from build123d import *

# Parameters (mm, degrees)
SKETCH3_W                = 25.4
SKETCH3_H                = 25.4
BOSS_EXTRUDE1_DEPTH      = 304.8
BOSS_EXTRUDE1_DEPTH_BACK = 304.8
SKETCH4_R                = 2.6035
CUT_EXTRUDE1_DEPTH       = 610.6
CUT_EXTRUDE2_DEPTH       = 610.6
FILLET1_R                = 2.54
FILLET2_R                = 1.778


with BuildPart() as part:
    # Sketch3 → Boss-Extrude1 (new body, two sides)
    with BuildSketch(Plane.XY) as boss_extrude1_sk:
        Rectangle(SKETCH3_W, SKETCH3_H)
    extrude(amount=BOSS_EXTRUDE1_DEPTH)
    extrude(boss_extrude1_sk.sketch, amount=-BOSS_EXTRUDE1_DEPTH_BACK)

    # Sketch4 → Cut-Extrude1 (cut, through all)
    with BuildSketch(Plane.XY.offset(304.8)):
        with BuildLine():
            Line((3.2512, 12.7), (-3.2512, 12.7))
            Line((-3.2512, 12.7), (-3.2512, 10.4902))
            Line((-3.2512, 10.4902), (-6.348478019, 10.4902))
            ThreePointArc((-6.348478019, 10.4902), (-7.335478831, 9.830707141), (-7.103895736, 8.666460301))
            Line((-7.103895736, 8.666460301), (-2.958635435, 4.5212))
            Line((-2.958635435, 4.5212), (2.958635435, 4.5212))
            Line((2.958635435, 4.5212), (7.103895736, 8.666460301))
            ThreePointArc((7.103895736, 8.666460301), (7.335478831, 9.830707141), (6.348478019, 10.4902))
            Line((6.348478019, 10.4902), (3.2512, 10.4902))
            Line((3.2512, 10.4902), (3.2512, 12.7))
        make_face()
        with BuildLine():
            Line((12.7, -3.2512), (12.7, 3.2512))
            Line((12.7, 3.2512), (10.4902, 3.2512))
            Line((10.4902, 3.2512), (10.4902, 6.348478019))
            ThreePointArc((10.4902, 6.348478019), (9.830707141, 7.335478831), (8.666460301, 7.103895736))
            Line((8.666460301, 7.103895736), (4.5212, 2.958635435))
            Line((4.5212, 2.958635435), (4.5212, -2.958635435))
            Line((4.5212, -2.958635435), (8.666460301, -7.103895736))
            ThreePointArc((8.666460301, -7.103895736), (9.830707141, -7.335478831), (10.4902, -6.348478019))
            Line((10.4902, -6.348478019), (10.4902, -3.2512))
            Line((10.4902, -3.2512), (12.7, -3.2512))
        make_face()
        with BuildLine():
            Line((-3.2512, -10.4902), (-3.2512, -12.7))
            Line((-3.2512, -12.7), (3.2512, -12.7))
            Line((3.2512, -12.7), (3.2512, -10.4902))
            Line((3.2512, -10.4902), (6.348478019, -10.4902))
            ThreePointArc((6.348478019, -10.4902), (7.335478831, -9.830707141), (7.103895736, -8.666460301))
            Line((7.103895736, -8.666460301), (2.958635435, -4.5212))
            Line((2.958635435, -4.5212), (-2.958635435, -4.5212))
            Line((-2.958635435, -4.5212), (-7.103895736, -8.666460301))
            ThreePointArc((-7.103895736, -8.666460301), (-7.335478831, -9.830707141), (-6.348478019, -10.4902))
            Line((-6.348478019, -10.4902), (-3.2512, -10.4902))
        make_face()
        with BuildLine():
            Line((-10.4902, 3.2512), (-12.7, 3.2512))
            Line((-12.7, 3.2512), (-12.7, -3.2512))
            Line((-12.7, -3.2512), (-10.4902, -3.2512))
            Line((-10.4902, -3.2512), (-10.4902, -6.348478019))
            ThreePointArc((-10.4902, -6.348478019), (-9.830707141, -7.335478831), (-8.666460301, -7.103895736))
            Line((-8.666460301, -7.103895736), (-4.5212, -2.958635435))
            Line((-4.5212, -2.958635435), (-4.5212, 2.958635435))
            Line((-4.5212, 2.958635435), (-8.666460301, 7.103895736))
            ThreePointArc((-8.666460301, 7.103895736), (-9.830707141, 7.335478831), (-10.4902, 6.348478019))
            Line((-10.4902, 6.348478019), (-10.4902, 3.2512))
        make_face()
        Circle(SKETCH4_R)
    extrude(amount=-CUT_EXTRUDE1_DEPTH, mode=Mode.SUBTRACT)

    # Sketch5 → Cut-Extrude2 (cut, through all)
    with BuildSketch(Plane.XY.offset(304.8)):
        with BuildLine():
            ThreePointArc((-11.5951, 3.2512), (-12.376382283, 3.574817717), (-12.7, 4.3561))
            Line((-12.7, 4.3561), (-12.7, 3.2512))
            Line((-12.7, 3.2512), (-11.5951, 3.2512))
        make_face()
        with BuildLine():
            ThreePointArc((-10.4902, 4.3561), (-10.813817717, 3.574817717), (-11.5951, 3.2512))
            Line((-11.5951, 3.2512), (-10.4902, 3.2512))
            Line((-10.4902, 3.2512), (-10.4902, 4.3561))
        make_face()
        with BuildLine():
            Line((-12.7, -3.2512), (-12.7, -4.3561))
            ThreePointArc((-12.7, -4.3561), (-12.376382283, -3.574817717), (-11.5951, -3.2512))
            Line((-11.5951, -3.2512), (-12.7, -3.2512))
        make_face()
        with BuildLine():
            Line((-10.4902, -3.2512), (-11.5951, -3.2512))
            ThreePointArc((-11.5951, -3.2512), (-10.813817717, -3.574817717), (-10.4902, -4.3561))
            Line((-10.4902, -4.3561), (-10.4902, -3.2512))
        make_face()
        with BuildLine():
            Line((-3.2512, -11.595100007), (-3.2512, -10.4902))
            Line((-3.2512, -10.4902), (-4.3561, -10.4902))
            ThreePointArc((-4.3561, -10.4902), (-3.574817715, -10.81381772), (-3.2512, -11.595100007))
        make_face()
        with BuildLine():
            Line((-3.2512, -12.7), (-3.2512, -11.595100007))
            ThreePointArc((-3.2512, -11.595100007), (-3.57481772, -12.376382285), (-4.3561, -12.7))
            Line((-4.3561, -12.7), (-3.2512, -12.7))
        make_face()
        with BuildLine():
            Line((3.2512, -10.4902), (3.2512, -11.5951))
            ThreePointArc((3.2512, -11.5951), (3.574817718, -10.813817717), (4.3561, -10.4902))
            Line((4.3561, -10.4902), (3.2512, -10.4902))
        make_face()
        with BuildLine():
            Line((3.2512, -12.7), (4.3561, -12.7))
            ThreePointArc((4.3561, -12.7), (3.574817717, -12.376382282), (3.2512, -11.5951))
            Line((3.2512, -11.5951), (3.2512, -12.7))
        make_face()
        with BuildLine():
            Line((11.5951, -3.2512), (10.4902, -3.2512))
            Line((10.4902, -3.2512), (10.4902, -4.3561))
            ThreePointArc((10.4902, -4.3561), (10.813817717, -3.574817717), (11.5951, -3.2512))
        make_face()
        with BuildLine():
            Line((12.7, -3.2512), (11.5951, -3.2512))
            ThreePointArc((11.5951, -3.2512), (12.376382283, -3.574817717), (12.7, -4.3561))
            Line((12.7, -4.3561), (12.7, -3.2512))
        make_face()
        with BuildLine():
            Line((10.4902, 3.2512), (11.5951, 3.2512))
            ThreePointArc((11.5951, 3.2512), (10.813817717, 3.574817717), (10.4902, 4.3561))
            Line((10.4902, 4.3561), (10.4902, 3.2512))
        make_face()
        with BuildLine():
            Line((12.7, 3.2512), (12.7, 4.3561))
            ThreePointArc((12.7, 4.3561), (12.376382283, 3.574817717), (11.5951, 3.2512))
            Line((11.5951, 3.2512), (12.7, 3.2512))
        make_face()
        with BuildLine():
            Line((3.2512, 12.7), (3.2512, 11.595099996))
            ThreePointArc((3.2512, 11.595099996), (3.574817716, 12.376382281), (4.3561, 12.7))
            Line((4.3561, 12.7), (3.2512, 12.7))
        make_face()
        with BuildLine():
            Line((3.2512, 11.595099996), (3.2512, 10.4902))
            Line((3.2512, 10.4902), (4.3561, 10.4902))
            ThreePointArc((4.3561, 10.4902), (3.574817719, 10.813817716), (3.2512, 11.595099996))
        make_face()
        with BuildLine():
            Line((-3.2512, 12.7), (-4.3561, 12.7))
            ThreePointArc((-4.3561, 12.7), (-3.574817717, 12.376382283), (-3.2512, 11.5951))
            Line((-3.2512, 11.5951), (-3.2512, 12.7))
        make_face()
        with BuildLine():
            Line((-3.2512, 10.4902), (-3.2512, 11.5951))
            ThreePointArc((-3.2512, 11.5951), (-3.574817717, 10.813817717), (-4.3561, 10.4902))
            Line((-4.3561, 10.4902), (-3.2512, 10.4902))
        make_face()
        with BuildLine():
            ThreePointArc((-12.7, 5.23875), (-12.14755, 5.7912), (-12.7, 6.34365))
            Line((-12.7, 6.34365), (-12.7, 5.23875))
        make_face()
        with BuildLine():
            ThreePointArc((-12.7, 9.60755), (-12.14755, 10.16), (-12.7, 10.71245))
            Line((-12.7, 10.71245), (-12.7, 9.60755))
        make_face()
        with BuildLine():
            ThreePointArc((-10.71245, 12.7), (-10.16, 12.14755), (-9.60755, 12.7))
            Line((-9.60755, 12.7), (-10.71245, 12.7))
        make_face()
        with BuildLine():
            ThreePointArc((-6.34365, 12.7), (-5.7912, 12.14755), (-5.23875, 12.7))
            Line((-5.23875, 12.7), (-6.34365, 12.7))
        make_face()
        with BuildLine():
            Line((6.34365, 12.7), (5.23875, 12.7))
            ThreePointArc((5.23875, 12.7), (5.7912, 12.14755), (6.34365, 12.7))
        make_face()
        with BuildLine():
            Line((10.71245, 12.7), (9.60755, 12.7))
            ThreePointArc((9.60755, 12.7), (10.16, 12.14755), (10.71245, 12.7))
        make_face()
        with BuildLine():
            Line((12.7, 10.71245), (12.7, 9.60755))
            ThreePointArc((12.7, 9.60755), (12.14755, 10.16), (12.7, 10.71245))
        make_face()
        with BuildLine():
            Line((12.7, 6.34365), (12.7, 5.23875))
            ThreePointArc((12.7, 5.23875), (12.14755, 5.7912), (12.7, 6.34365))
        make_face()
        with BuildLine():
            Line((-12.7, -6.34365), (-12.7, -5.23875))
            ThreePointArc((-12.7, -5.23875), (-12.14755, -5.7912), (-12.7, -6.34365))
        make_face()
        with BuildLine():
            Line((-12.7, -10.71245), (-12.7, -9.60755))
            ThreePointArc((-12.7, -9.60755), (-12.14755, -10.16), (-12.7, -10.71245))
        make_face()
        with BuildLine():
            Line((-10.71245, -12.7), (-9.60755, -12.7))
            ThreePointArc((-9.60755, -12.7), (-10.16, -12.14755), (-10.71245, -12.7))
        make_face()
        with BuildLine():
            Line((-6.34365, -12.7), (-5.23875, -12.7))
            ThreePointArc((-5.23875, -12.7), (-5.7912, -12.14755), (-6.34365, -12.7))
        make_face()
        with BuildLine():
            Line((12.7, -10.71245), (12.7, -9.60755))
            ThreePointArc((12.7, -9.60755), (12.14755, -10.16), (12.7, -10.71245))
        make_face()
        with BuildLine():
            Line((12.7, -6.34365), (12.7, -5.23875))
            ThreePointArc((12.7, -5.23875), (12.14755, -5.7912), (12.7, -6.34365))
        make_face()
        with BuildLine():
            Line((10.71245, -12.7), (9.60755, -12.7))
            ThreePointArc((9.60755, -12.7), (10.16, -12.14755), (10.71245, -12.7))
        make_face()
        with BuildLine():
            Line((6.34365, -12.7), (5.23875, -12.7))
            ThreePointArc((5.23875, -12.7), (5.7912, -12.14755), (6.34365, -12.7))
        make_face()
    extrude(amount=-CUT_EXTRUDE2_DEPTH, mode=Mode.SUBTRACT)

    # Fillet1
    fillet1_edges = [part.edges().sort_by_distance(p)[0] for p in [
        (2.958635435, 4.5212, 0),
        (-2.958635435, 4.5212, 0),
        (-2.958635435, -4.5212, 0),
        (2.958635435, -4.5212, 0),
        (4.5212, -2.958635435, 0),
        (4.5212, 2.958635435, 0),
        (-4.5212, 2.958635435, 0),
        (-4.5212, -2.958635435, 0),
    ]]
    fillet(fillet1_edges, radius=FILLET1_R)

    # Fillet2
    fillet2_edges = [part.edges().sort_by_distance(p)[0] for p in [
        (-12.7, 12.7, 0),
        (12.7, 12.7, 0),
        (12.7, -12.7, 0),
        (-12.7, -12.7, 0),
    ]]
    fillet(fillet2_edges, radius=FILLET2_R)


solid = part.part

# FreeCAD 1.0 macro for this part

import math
import FreeCAD as App
import Part
import Sketcher

V = App.Vector
Q = App.Units.Quantity


def edges_at(feature, points):
    """Names of the edges that pass closest to the given points."""
    edges = feature.Shape.Edges
    near = lambda p: min(range(len(edges)), key=lambda i: edges[i].distToShape(Part.Vertex(*p))[0])
    return sorted({f"Edge{near(p) + 1}" for p in points})


def add_polygon(sketch, points):
    """Adds a closed chain of lines whose ends are joined by coincident constraints."""
    first, n = sketch.GeometryCount, len(points)
    for a, b in zip(points, points[1:] + points[:1]):
        sketch.addGeometry(Part.LineSegment(App.Vector(*a, 0), App.Vector(*b, 0)), False)
    for i in range(n):
        sketch.addConstraint(Sketcher.Constraint("Coincident", first + i, 2, first + (i + 1) % n, 1))

doc = App.newDocument("Part")
body = doc.addObject("PartDesign::Body", "Body")

# Sketch on XY plane
sketch1 = body.newObject("Sketcher::SketchObject", "Sketch")
sketch1.AttachmentSupport = (doc.getObject("XY_Plane"), [""])
sketch1.MapMode = "FlatFace"
add_polygon(sketch1, [(-12.7, 12.7), (-12.7, -12.7), (12.7, -12.7), (12.7, 12.7)])  # lines 0-3
sketch1.addConstraint([
    Sketcher.Constraint("Vertical", 0),
    Sketcher.Constraint("Horizontal", 1),
    Sketcher.Constraint("Vertical", 2),
    Sketcher.Constraint("Horizontal", 3),
    Sketcher.Constraint("Symmetric", 0, 2, 2, 2, -1, 1),
    Sketcher.Constraint("Equal", 3, 0),
    Sketcher.Constraint("DistanceX", 1, 1, 1, 2, Q("1 in")),
])
pad1 = body.newObject("PartDesign::Pad", "Pad")
pad1.Profile = sketch1
pad1.Type = "TwoLengths"
pad1.Length = Q("12 in")
pad1.Length2 = Q("12 in")

# Sketch on XY plane
sketch2 = body.newObject("Sketcher::SketchObject", "Sketch001")
sketch2.AttachmentSupport = (doc.getObject("XY_Plane"), [""])
sketch2.MapMode = "FlatFace"
sketch2.AttachmentOffset = App.Placement(V(0, 0, 12 * 25.4), App.Rotation())
sketch2.addGeometry([
    Part.LineSegment(V(3.2512, 12.7, 0), V(-3.2512, 12.7, 0)),  # 0
    Part.LineSegment(V(-3.2512, 12.7, 0), V(-3.2512, 10.4902, 0)),  # 1
    Part.LineSegment(V(-3.2512, 10.4902, 0), V(-6.348478, 10.4902, 0)),  # 2
    Part.ArcOfCircle(Part.Circle(V(-6.348478, 9.421878, 0), V(0, 0, 1), 1.068322), math.radians(90), math.radians(225)),  # 3
    Part.LineSegment(V(-7.103896, 8.66646, 0), V(-2.958635, 4.5212, 0)),  # 4
    Part.LineSegment(V(-2.958635, 4.5212, 0), V(2.958635, 4.5212, 0)),  # 5
    Part.LineSegment(V(2.958635, 4.5212, 0), V(7.103896, 8.66646, 0)),  # 6
    Part.ArcOfCircle(Part.Circle(V(6.348478, 9.421878, 0), V(0, 0, 1), 1.068322), math.radians(-45), math.radians(90)),  # 7
    Part.LineSegment(V(6.348478, 10.4902, 0), V(3.2512, 10.4902, 0)),  # 8
    Part.LineSegment(V(3.2512, 10.4902, 0), V(3.2512, 12.7, 0)),  # 9
    Part.LineSegment(V(12.7, -3.2512, 0), V(12.7, 3.2512, 0)),  # 10
    Part.LineSegment(V(12.7, 3.2512, 0), V(10.4902, 3.2512, 0)),  # 11
    Part.LineSegment(V(10.4902, 3.2512, 0), V(10.4902, 6.348478, 0)),  # 12
    Part.ArcOfCircle(Part.Circle(V(9.421878, 6.348478, 0), V(0, 0, 1), 1.068322), math.radians(0), math.radians(135)),  # 13
    Part.LineSegment(V(8.66646, 7.103896, 0), V(4.5212, 2.958635, 0)),  # 14
    Part.LineSegment(V(4.5212, 2.958635, 0), V(4.5212, -2.958635, 0)),  # 15
    Part.LineSegment(V(4.5212, -2.958635, 0), V(8.66646, -7.103896, 0)),  # 16
    Part.ArcOfCircle(Part.Circle(V(9.421878, -6.348478, 0), V(0, 0, 1), 1.068322), math.radians(-135), math.radians(0)),  # 17
    Part.LineSegment(V(10.4902, -6.348478, 0), V(10.4902, -3.2512, 0)),  # 18
    Part.LineSegment(V(10.4902, -3.2512, 0), V(12.7, -3.2512, 0)),  # 19
    Part.LineSegment(V(-3.2512, -10.4902, 0), V(-3.2512, -12.7, 0)),  # 20
    Part.LineSegment(V(-3.2512, -12.7, 0), V(3.2512, -12.7, 0)),  # 21
    Part.LineSegment(V(3.2512, -12.7, 0), V(3.2512, -10.4902, 0)),  # 22
    Part.LineSegment(V(3.2512, -10.4902, 0), V(6.348478, -10.4902, 0)),  # 23
    Part.ArcOfCircle(Part.Circle(V(6.348478, -9.421878, 0), V(0, 0, 1), 1.068322), math.radians(-90), math.radians(45)),  # 24
    Part.LineSegment(V(7.103896, -8.66646, 0), V(2.958635, -4.5212, 0)),  # 25
    Part.LineSegment(V(2.958635, -4.5212, 0), V(-2.958635, -4.5212, 0)),  # 26
    Part.LineSegment(V(-2.958635, -4.5212, 0), V(-7.103896, -8.66646, 0)),  # 27
    Part.ArcOfCircle(Part.Circle(V(-6.348478, -9.421878, 0), V(0, 0, 1), 1.068322), math.radians(135), math.radians(270)),  # 28
    Part.LineSegment(V(-6.348478, -10.4902, 0), V(-3.2512, -10.4902, 0)),  # 29
    Part.LineSegment(V(-10.4902, 3.2512, 0), V(-12.7, 3.2512, 0)),  # 30
    Part.LineSegment(V(-12.7, 3.2512, 0), V(-12.7, -3.2512, 0)),  # 31
    Part.LineSegment(V(-12.7, -3.2512, 0), V(-10.4902, -3.2512, 0)),  # 32
    Part.LineSegment(V(-10.4902, -3.2512, 0), V(-10.4902, -6.348478, 0)),  # 33
    Part.ArcOfCircle(Part.Circle(V(-9.421878, -6.348478, 0), V(0, 0, 1), 1.068322), math.radians(-180), math.radians(-45)),  # 34
    Part.LineSegment(V(-8.66646, -7.103896, 0), V(-4.5212, -2.958635, 0)),  # 35
    Part.LineSegment(V(-4.5212, -2.958635, 0), V(-4.5212, 2.958635, 0)),  # 36
    Part.LineSegment(V(-4.5212, 2.958635, 0), V(-8.66646, 7.103896, 0)),  # 37
    Part.ArcOfCircle(Part.Circle(V(-9.421878, 6.348478, 0), V(0, 0, 1), 1.068322), math.radians(45), math.radians(180)),  # 38
    Part.LineSegment(V(-10.4902, 6.348478, 0), V(-10.4902, 3.2512, 0)),  # 39
    Part.Circle(V(0, 0, 0), V(0, 0, 1), 2.6035),  # 40
], False)
sketch2.addConstraint([
    Sketcher.Constraint("Coincident", 0, 2, 1, 1),
    Sketcher.Constraint("Coincident", 1, 2, 2, 1),
    Sketcher.Constraint("Tangent", 2, 2, 3, 1),
    Sketcher.Constraint("Tangent", 3, 2, 4, 1),
    Sketcher.Constraint("Coincident", 4, 2, 5, 1),
    Sketcher.Constraint("Coincident", 5, 2, 6, 1),
    Sketcher.Constraint("Tangent", 6, 2, 7, 1),
    Sketcher.Constraint("Tangent", 7, 2, 8, 1),
    Sketcher.Constraint("Coincident", 8, 2, 9, 1),
    Sketcher.Constraint("Coincident", 9, 2, 0, 1),
    Sketcher.Constraint("Coincident", 10, 2, 11, 1),
    Sketcher.Constraint("Coincident", 11, 2, 12, 1),
    Sketcher.Constraint("Tangent", 12, 2, 13, 1),
    Sketcher.Constraint("Tangent", 13, 2, 14, 1),
    Sketcher.Constraint("Coincident", 14, 2, 15, 1),
    Sketcher.Constraint("Coincident", 15, 2, 16, 1),
    Sketcher.Constraint("Tangent", 16, 2, 17, 1),
    Sketcher.Constraint("Tangent", 17, 2, 18, 1),
    Sketcher.Constraint("Coincident", 18, 2, 19, 1),
    Sketcher.Constraint("Coincident", 19, 2, 10, 1),
    Sketcher.Constraint("Coincident", 20, 2, 21, 1),
    Sketcher.Constraint("Coincident", 21, 2, 22, 1),
    Sketcher.Constraint("Coincident", 22, 2, 23, 1),
    Sketcher.Constraint("Tangent", 23, 2, 24, 1),
    Sketcher.Constraint("Tangent", 24, 2, 25, 1),
    Sketcher.Constraint("Coincident", 25, 2, 26, 1),
    Sketcher.Constraint("Coincident", 26, 2, 27, 1),
    Sketcher.Constraint("Tangent", 27, 2, 28, 1),
    Sketcher.Constraint("Tangent", 28, 2, 29, 1),
    Sketcher.Constraint("Coincident", 29, 2, 20, 1),
    Sketcher.Constraint("Coincident", 30, 2, 31, 1),
    Sketcher.Constraint("Coincident", 31, 2, 32, 1),
    Sketcher.Constraint("Coincident", 32, 2, 33, 1),
    Sketcher.Constraint("Tangent", 33, 2, 34, 1),
    Sketcher.Constraint("Tangent", 34, 2, 35, 1),
    Sketcher.Constraint("Coincident", 35, 2, 36, 1),
    Sketcher.Constraint("Coincident", 36, 2, 37, 1),
    Sketcher.Constraint("Tangent", 37, 2, 38, 1),
    Sketcher.Constraint("Tangent", 38, 2, 39, 1),
    Sketcher.Constraint("Coincident", 39, 2, 30, 1),
    Sketcher.Constraint("Horizontal", 0),
    Sketcher.Constraint("Vertical", 1),
    Sketcher.Constraint("Horizontal", 2),
    Sketcher.Constraint("Horizontal", 5),
    Sketcher.Constraint("Horizontal", 8),
    Sketcher.Constraint("Vertical", 9),
    Sketcher.Constraint("Vertical", 10),
    Sketcher.Constraint("Horizontal", 11),
    Sketcher.Constraint("Vertical", 12),
    Sketcher.Constraint("Vertical", 15),
    Sketcher.Constraint("Vertical", 18),
    Sketcher.Constraint("Horizontal", 19),
    Sketcher.Constraint("Vertical", 20),
    Sketcher.Constraint("Horizontal", 21),
    Sketcher.Constraint("Vertical", 22),
    Sketcher.Constraint("Horizontal", 23),
    Sketcher.Constraint("Horizontal", 26),
    Sketcher.Constraint("Horizontal", 29),
    Sketcher.Constraint("Horizontal", 30),
    Sketcher.Constraint("Vertical", 31),
    Sketcher.Constraint("Horizontal", 32),
    Sketcher.Constraint("Vertical", 33),
    Sketcher.Constraint("Vertical", 36),
    Sketcher.Constraint("Vertical", 39),
    Sketcher.Constraint("Coincident", 40, 3, -1, 1),
    Sketcher.Constraint("Equal", 3, 7),
    Sketcher.Constraint("Equal", 7, 13),
    Sketcher.Constraint("Equal", 13, 17),
    Sketcher.Constraint("Equal", 17, 24),
    Sketcher.Constraint("Equal", 24, 28),
    Sketcher.Constraint("Equal", 28, 34),
    Sketcher.Constraint("Equal", 34, 38),
    Sketcher.Constraint("Symmetric", 3, 3, 24, 3, -1, 1),
    Sketcher.Constraint("Symmetric", 7, 3, 28, 3, -1, 1),
    Sketcher.Constraint("Symmetric", 13, 3, 34, 3, -1, 1),
    Sketcher.Constraint("Symmetric", 17, 3, 38, 3, -1, 1),
    Sketcher.Constraint("Symmetric", 9, 2, 20, 2, -1, 1),
    Sketcher.Constraint("Symmetric", 4, 2, 25, 2, -1, 1),
    Sketcher.Constraint("Symmetric", 19, 2, 30, 2, -1, 1),
    Sketcher.Constraint("Symmetric", 14, 2, 35, 2, -1, 1),
    Sketcher.Constraint("Symmetric", 3, 3, 7, 3, -2),
    Sketcher.Constraint("Symmetric", 17, 3, 34, 3, -2),
    Sketcher.Constraint("Perpendicular", 4, 6),
    Sketcher.Constraint("Parallel", 6, 14),
    Sketcher.Constraint("Perpendicular", 14, 16),
    Sketcher.Constraint("Perpendicular", 25, 27),
    Sketcher.Constraint("Perpendicular", 35, 37),
    Sketcher.Constraint("Horizontal", 3, 2, 6, 2),
    Sketcher.Constraint("Horizontal", 11, 2, 30, 2),
    Sketcher.Constraint("Horizontal", 19, 2, 31, 2),
    Sketcher.Constraint("Vertical", 1, 2, 20, 2),
    Sketcher.Constraint("Vertical", 9, 2, 21, 2),
    Sketcher.Constraint("Equal", 32, 1),
    Sketcher.Constraint("Equal", 21, 10),
    Sketcher.Constraint("Equal", 29, 12),
    Sketcher.Constraint("Equal", 26, 15),
    Sketcher.Constraint("Diameter", 40, Q("0.205 in")),
    Sketcher.Constraint("DistanceY", -1, 1, 0, 2, Q("0.5 in")),
    Sketcher.Constraint("DistanceX", -1, 1, 10, 2, Q("0.5 in")),
    Sketcher.Constraint("DistanceX", 0, 2, 0, 1, Q("0.256 in")),
    Sketcher.Constraint("DistanceX", 11, 2, 11, 1, Q("0.087 in")),
    Sketcher.Constraint("DistanceY", 10, 2, 5, 2, Q("0.05 in")),
    Sketcher.Constraint("Radius", 3, Q("1.068322 mm")),
    Sketcher.Constraint("DistanceX", 7, 3, 13, 3, Q("0.121 in")),
])
pocket1 = body.newObject("PartDesign::Pocket", "Pocket")
pocket1.Profile = sketch2
pocket1.Type = "ThroughAll"

# Sketch on XY plane
sketch3 = body.newObject("Sketcher::SketchObject", "Sketch002")
sketch3.AttachmentSupport = (doc.getObject("XY_Plane"), [""])
sketch3.MapMode = "FlatFace"
sketch3.AttachmentOffset = App.Placement(V(0, 0, 12 * 25.4), App.Rotation())
sketch3.addGeometry([
    Part.ArcOfCircle(Part.Circle(V(-11.5951, 4.3561, 0), V(0, 0, 1), 1.1049), math.radians(180), math.radians(270)),  # 0
    Part.LineSegment(V(-12.7, 4.3561, 0), V(-12.7, 3.2512, 0)),  # 1
    Part.LineSegment(V(-12.7, 3.2512, 0), V(-11.5951, 3.2512, 0)),  # 2
    Part.ArcOfCircle(Part.Circle(V(-11.5951, 4.3561, 0), V(0, 0, 1), 1.1049), math.radians(-90), math.radians(0)),  # 3
    Part.LineSegment(V(-11.5951, 3.2512, 0), V(-10.4902, 3.2512, 0)),  # 4
    Part.LineSegment(V(-10.4902, 3.2512, 0), V(-10.4902, 4.3561, 0)),  # 5
    Part.LineSegment(V(-12.7, -3.2512, 0), V(-12.7, -4.3561, 0)),  # 6
    Part.ArcOfCircle(Part.Circle(V(-11.5951, -4.3561, 0), V(0, 0, 1), 1.1049), math.radians(90), math.radians(180)),  # 7
    Part.LineSegment(V(-11.5951, -3.2512, 0), V(-12.7, -3.2512, 0)),  # 8
    Part.LineSegment(V(-10.4902, -3.2512, 0), V(-11.5951, -3.2512, 0)),  # 9
    Part.ArcOfCircle(Part.Circle(V(-11.5951, -4.3561, 0), V(0, 0, 1), 1.1049), math.radians(0), math.radians(90)),  # 10
    Part.LineSegment(V(-10.4902, -4.3561, 0), V(-10.4902, -3.2512, 0)),  # 11
    Part.LineSegment(V(-3.2512, -11.5951, 0), V(-3.2512, -10.4902, 0)),  # 12
    Part.LineSegment(V(-3.2512, -10.4902, 0), V(-4.3561, -10.4902, 0)),  # 13
    Part.ArcOfCircle(Part.Circle(V(-4.3561, -11.5951, 0), V(0, 0, 1), 1.1049), math.radians(0), math.radians(90)),  # 14
    Part.LineSegment(V(-3.2512, -12.7, 0), V(-3.2512, -11.5951, 0)),  # 15
    Part.ArcOfCircle(Part.Circle(V(-4.3561, -11.5951, 0), V(0, 0, 1), 1.1049), math.radians(-90), math.radians(0)),  # 16
    Part.LineSegment(V(-4.3561, -12.7, 0), V(-3.2512, -12.7, 0)),  # 17
    Part.LineSegment(V(3.2512, -10.4902, 0), V(3.2512, -11.5951, 0)),  # 18
    Part.ArcOfCircle(Part.Circle(V(4.3561, -11.5951, 0), V(0, 0, 1), 1.1049), math.radians(90), math.radians(180)),  # 19
    Part.LineSegment(V(4.3561, -10.4902, 0), V(3.2512, -10.4902, 0)),  # 20
    Part.LineSegment(V(3.2512, -12.7, 0), V(4.3561, -12.7, 0)),  # 21
    Part.ArcOfCircle(Part.Circle(V(4.3561, -11.5951, 0), V(0, 0, 1), 1.1049), math.radians(180), math.radians(270)),  # 22
    Part.LineSegment(V(3.2512, -11.5951, 0), V(3.2512, -12.7, 0)),  # 23
    Part.LineSegment(V(11.5951, -3.2512, 0), V(10.4902, -3.2512, 0)),  # 24
    Part.LineSegment(V(10.4902, -3.2512, 0), V(10.4902, -4.3561, 0)),  # 25
    Part.ArcOfCircle(Part.Circle(V(11.5951, -4.3561, 0), V(0, 0, 1), 1.1049), math.radians(90), math.radians(180)),  # 26
    Part.LineSegment(V(12.7, -3.2512, 0), V(11.5951, -3.2512, 0)),  # 27
    Part.ArcOfCircle(Part.Circle(V(11.5951, -4.3561, 0), V(0, 0, 1), 1.1049), math.radians(0), math.radians(90)),  # 28
    Part.LineSegment(V(12.7, -4.3561, 0), V(12.7, -3.2512, 0)),  # 29
    Part.LineSegment(V(10.4902, 3.2512, 0), V(11.5951, 3.2512, 0)),  # 30
    Part.ArcOfCircle(Part.Circle(V(11.5951, 4.3561, 0), V(0, 0, 1), 1.1049), math.radians(180), math.radians(270)),  # 31
    Part.LineSegment(V(10.4902, 4.3561, 0), V(10.4902, 3.2512, 0)),  # 32
    Part.LineSegment(V(12.7, 3.2512, 0), V(12.7, 4.3561, 0)),  # 33
    Part.ArcOfCircle(Part.Circle(V(11.5951, 4.3561, 0), V(0, 0, 1), 1.1049), math.radians(-90), math.radians(0)),  # 34
    Part.LineSegment(V(11.5951, 3.2512, 0), V(12.7, 3.2512, 0)),  # 35
    Part.LineSegment(V(3.2512, 12.7, 0), V(3.2512, 11.5951, 0)),  # 36
    Part.ArcOfCircle(Part.Circle(V(4.3561, 11.5951, 0), V(0, 0, 1), 1.1049), math.radians(90), math.radians(180)),  # 37
    Part.LineSegment(V(4.3561, 12.7, 0), V(3.2512, 12.7, 0)),  # 38
    Part.LineSegment(V(3.2512, 11.5951, 0), V(3.2512, 10.4902, 0)),  # 39
    Part.LineSegment(V(3.2512, 10.4902, 0), V(4.3561, 10.4902, 0)),  # 40
    Part.ArcOfCircle(Part.Circle(V(4.3561, 11.5951, 0), V(0, 0, 1), 1.1049), math.radians(-180), math.radians(-90)),  # 41
    Part.LineSegment(V(-3.2512, 12.7, 0), V(-4.3561, 12.7, 0)),  # 42
    Part.ArcOfCircle(Part.Circle(V(-4.3561, 11.5951, 0), V(0, 0, 1), 1.1049), math.radians(0), math.radians(90)),  # 43
    Part.LineSegment(V(-3.2512, 11.5951, 0), V(-3.2512, 12.7, 0)),  # 44
    Part.LineSegment(V(-3.2512, 10.4902, 0), V(-3.2512, 11.5951, 0)),  # 45
    Part.ArcOfCircle(Part.Circle(V(-4.3561, 11.5951, 0), V(0, 0, 1), 1.1049), math.radians(-90), math.radians(0)),  # 46
    Part.LineSegment(V(-4.3561, 10.4902, 0), V(-3.2512, 10.4902, 0)),  # 47
    Part.ArcOfCircle(Part.Circle(V(-12.7, 5.7912, 0), V(0, 0, 1), 0.55245), math.radians(-90), math.radians(90)),  # 48
    Part.LineSegment(V(-12.7, 6.34365, 0), V(-12.7, 5.23875, 0)),  # 49
    Part.ArcOfCircle(Part.Circle(V(-12.7, 10.16, 0), V(0, 0, 1), 0.55245), math.radians(-90), math.radians(90)),  # 50
    Part.LineSegment(V(-12.7, 10.71245, 0), V(-12.7, 9.60755, 0)),  # 51
    Part.ArcOfCircle(Part.Circle(V(-10.16, 12.7, 0), V(0, 0, 1), 0.55245), math.radians(180), math.radians(360)),  # 52
    Part.LineSegment(V(-9.60755, 12.7, 0), V(-10.71245, 12.7, 0)),  # 53
    Part.ArcOfCircle(Part.Circle(V(-5.7912, 12.7, 0), V(0, 0, 1), 0.55245), math.radians(180), math.radians(360)),  # 54
    Part.LineSegment(V(-5.23875, 12.7, 0), V(-6.34365, 12.7, 0)),  # 55
    Part.LineSegment(V(6.34365, 12.7, 0), V(5.23875, 12.7, 0)),  # 56
    Part.ArcOfCircle(Part.Circle(V(5.7912, 12.7, 0), V(0, 0, 1), 0.55245), math.radians(180), math.radians(360)),  # 57
    Part.LineSegment(V(10.71245, 12.7, 0), V(9.60755, 12.7, 0)),  # 58
    Part.ArcOfCircle(Part.Circle(V(10.16, 12.7, 0), V(0, 0, 1), 0.55245), math.radians(180), math.radians(360)),  # 59
    Part.LineSegment(V(12.7, 9.60755, 0), V(12.7, 10.71245, 0)),  # 60
    Part.ArcOfCircle(Part.Circle(V(12.7, 10.16, 0), V(0, 0, 1), 0.55245), math.radians(90), math.radians(270)),  # 61
    Part.LineSegment(V(12.7, 5.23875, 0), V(12.7, 6.34365, 0)),  # 62
    Part.ArcOfCircle(Part.Circle(V(12.7, 5.7912, 0), V(0, 0, 1), 0.55245), math.radians(90), math.radians(270)),  # 63
    Part.LineSegment(V(-12.7, -5.23875, 0), V(-12.7, -6.34365, 0)),  # 64
    Part.ArcOfCircle(Part.Circle(V(-12.7, -5.7912, 0), V(0, 0, 1), 0.55245), math.radians(-90), math.radians(90)),  # 65
    Part.LineSegment(V(-12.7, -9.60755, 0), V(-12.7, -10.71245, 0)),  # 66
    Part.ArcOfCircle(Part.Circle(V(-12.7, -10.16, 0), V(0, 0, 1), 0.55245), math.radians(-90), math.radians(90)),  # 67
    Part.LineSegment(V(-10.71245, -12.7, 0), V(-9.60755, -12.7, 0)),  # 68
    Part.ArcOfCircle(Part.Circle(V(-10.16, -12.7, 0), V(0, 0, 1), 0.55245), math.radians(0), math.radians(180)),  # 69
    Part.LineSegment(V(-6.34365, -12.7, 0), V(-5.23875, -12.7, 0)),  # 70
    Part.ArcOfCircle(Part.Circle(V(-5.7912, -12.7, 0), V(0, 0, 1), 0.55245), math.radians(0), math.radians(180)),  # 71
    Part.LineSegment(V(12.7, -10.71245, 0), V(12.7, -9.60755, 0)),  # 72
    Part.ArcOfCircle(Part.Circle(V(12.7, -10.16, 0), V(0, 0, 1), 0.55245), math.radians(90), math.radians(270)),  # 73
    Part.LineSegment(V(12.7, -6.34365, 0), V(12.7, -5.23875, 0)),  # 74
    Part.ArcOfCircle(Part.Circle(V(12.7, -5.7912, 0), V(0, 0, 1), 0.55245), math.radians(90), math.radians(270)),  # 75
    Part.LineSegment(V(9.60755, -12.7, 0), V(10.71245, -12.7, 0)),  # 76
    Part.ArcOfCircle(Part.Circle(V(10.16, -12.7, 0), V(0, 0, 1), 0.55245), math.radians(0), math.radians(180)),  # 77
    Part.LineSegment(V(5.23875, -12.7, 0), V(6.34365, -12.7, 0)),  # 78
    Part.ArcOfCircle(Part.Circle(V(5.7912, -12.7, 0), V(0, 0, 1), 0.55245), math.radians(0), math.radians(180)),  # 79
], False)
sketch3.addConstraint([
    Sketcher.Constraint("Tangent", 0, 1, 1, 1),
    Sketcher.Constraint("Coincident", 1, 2, 2, 1),
    Sketcher.Constraint("Tangent", 2, 2, 0, 2),
    Sketcher.Constraint("Tangent", 3, 1, 4, 1),
    Sketcher.Constraint("Coincident", 4, 2, 5, 1),
    Sketcher.Constraint("Tangent", 5, 2, 3, 2),
    Sketcher.Constraint("Tangent", 6, 2, 7, 2),
    Sketcher.Constraint("Tangent", 7, 1, 8, 1),
    Sketcher.Constraint("Coincident", 8, 2, 6, 1),
    Sketcher.Constraint("Tangent", 9, 2, 10, 2),
    Sketcher.Constraint("Tangent", 10, 1, 11, 1),
    Sketcher.Constraint("Coincident", 11, 2, 9, 1),
    Sketcher.Constraint("Coincident", 12, 2, 13, 1),
    Sketcher.Constraint("Tangent", 13, 2, 14, 2),
    Sketcher.Constraint("Tangent", 14, 1, 12, 1),
    Sketcher.Constraint("Tangent", 15, 2, 16, 2),
    Sketcher.Constraint("Tangent", 16, 1, 17, 1),
    Sketcher.Constraint("Coincident", 17, 2, 15, 1),
    Sketcher.Constraint("Tangent", 18, 2, 19, 2),
    Sketcher.Constraint("Tangent", 19, 1, 20, 1),
    Sketcher.Constraint("Coincident", 20, 2, 18, 1),
    Sketcher.Constraint("Tangent", 21, 2, 22, 2),
    Sketcher.Constraint("Tangent", 22, 1, 23, 1),
    Sketcher.Constraint("Coincident", 23, 2, 21, 1),
    Sketcher.Constraint("Coincident", 24, 2, 25, 1),
    Sketcher.Constraint("Tangent", 25, 2, 26, 2),
    Sketcher.Constraint("Tangent", 26, 1, 24, 1),
    Sketcher.Constraint("Tangent", 27, 2, 28, 2),
    Sketcher.Constraint("Tangent", 28, 1, 29, 1),
    Sketcher.Constraint("Coincident", 29, 2, 27, 1),
    Sketcher.Constraint("Tangent", 30, 2, 31, 2),
    Sketcher.Constraint("Tangent", 31, 1, 32, 1),
    Sketcher.Constraint("Coincident", 32, 2, 30, 1),
    Sketcher.Constraint("Tangent", 33, 2, 34, 2),
    Sketcher.Constraint("Tangent", 34, 1, 35, 1),
    Sketcher.Constraint("Coincident", 35, 2, 33, 1),
    Sketcher.Constraint("Tangent", 36, 2, 37, 2),
    Sketcher.Constraint("Tangent", 37, 1, 38, 1),
    Sketcher.Constraint("Coincident", 38, 2, 36, 1),
    Sketcher.Constraint("Coincident", 39, 2, 40, 1),
    Sketcher.Constraint("Tangent", 40, 2, 41, 2),
    Sketcher.Constraint("Tangent", 41, 1, 39, 1),
    Sketcher.Constraint("Tangent", 42, 2, 43, 2),
    Sketcher.Constraint("Tangent", 43, 1, 44, 1),
    Sketcher.Constraint("Coincident", 44, 2, 42, 1),
    Sketcher.Constraint("Tangent", 45, 2, 46, 2),
    Sketcher.Constraint("Tangent", 46, 1, 47, 1),
    Sketcher.Constraint("Coincident", 47, 2, 45, 1),
    Sketcher.Constraint("Coincident", 48, 1, 49, 2),
    Sketcher.Constraint("Coincident", 49, 1, 48, 2),
    Sketcher.Constraint("Coincident", 50, 1, 51, 2),
    Sketcher.Constraint("Coincident", 51, 1, 50, 2),
    Sketcher.Constraint("Coincident", 52, 1, 53, 2),
    Sketcher.Constraint("Coincident", 53, 1, 52, 2),
    Sketcher.Constraint("Coincident", 54, 1, 55, 2),
    Sketcher.Constraint("Coincident", 55, 1, 54, 2),
    Sketcher.Constraint("Coincident", 56, 1, 57, 2),
    Sketcher.Constraint("Coincident", 57, 1, 56, 2),
    Sketcher.Constraint("Coincident", 58, 1, 59, 2),
    Sketcher.Constraint("Coincident", 59, 1, 58, 2),
    Sketcher.Constraint("Coincident", 60, 1, 61, 2),
    Sketcher.Constraint("Coincident", 61, 1, 60, 2),
    Sketcher.Constraint("Coincident", 62, 1, 63, 2),
    Sketcher.Constraint("Coincident", 63, 1, 62, 2),
    Sketcher.Constraint("Coincident", 64, 1, 65, 2),
    Sketcher.Constraint("Coincident", 65, 1, 64, 2),
    Sketcher.Constraint("Coincident", 66, 1, 67, 2),
    Sketcher.Constraint("Coincident", 67, 1, 66, 2),
    Sketcher.Constraint("Coincident", 68, 1, 69, 2),
    Sketcher.Constraint("Coincident", 69, 1, 68, 2),
    Sketcher.Constraint("Coincident", 70, 1, 71, 2),
    Sketcher.Constraint("Coincident", 71, 1, 70, 2),
    Sketcher.Constraint("Coincident", 72, 1, 73, 2),
    Sketcher.Constraint("Coincident", 73, 1, 72, 2),
    Sketcher.Constraint("Coincident", 74, 1, 75, 2),
    Sketcher.Constraint("Coincident", 75, 1, 74, 2),
    Sketcher.Constraint("Coincident", 76, 1, 77, 2),
    Sketcher.Constraint("Coincident", 77, 1, 76, 2),
    Sketcher.Constraint("Coincident", 78, 1, 79, 2),
    Sketcher.Constraint("Coincident", 79, 1, 78, 2),
    Sketcher.Constraint("Vertical", 1),
    Sketcher.Constraint("Horizontal", 2),
    Sketcher.Constraint("Horizontal", 4),
    Sketcher.Constraint("Vertical", 5),
    Sketcher.Constraint("Vertical", 6),
    Sketcher.Constraint("Horizontal", 8),
    Sketcher.Constraint("Horizontal", 9),
    Sketcher.Constraint("Vertical", 11),
    Sketcher.Constraint("Vertical", 12),
    Sketcher.Constraint("Horizontal", 13),
    Sketcher.Constraint("Vertical", 15),
    Sketcher.Constraint("Horizontal", 17),
    Sketcher.Constraint("Vertical", 18),
    Sketcher.Constraint("Horizontal", 20),
    Sketcher.Constraint("Horizontal", 21),
    Sketcher.Constraint("Vertical", 23),
    Sketcher.Constraint("Horizontal", 24),
    Sketcher.Constraint("Vertical", 25),
    Sketcher.Constraint("Horizontal", 27),
    Sketcher.Constraint("Vertical", 29),
    Sketcher.Constraint("Horizontal", 30),
    Sketcher.Constraint("Vertical", 32),
    Sketcher.Constraint("Vertical", 33),
    Sketcher.Constraint("Horizontal", 35),
    Sketcher.Constraint("Vertical", 36),
    Sketcher.Constraint("Horizontal", 38),
    Sketcher.Constraint("Vertical", 39),
    Sketcher.Constraint("Horizontal", 40),
    Sketcher.Constraint("Horizontal", 42),
    Sketcher.Constraint("Vertical", 44),
    Sketcher.Constraint("Vertical", 45),
    Sketcher.Constraint("Horizontal", 47),
    Sketcher.Constraint("Vertical", 49),
    Sketcher.Constraint("Vertical", 51),
    Sketcher.Constraint("Horizontal", 53),
    Sketcher.Constraint("Horizontal", 55),
    Sketcher.Constraint("Horizontal", 56),
    Sketcher.Constraint("Horizontal", 58),
    Sketcher.Constraint("Vertical", 60),
    Sketcher.Constraint("Vertical", 62),
    Sketcher.Constraint("Vertical", 64),
    Sketcher.Constraint("Vertical", 66),
    Sketcher.Constraint("Horizontal", 68),
    Sketcher.Constraint("Horizontal", 70),
    Sketcher.Constraint("Vertical", 72),
    Sketcher.Constraint("Vertical", 74),
    Sketcher.Constraint("Horizontal", 76),
    Sketcher.Constraint("Horizontal", 78),
    Sketcher.Constraint("Coincident", 3, 3, 0, 3),
    Sketcher.Constraint("Coincident", 10, 3, 7, 3),
    Sketcher.Constraint("Coincident", 16, 3, 14, 3),
    Sketcher.Constraint("Coincident", 22, 3, 19, 3),
    Sketcher.Constraint("Coincident", 28, 3, 26, 3),
    Sketcher.Constraint("Coincident", 34, 3, 31, 3),
    Sketcher.Constraint("Coincident", 41, 3, 37, 3),
    Sketcher.Constraint("Coincident", 46, 3, 43, 3),
    Sketcher.Constraint("Equal", 0, 3),
    Sketcher.Constraint("Equal", 3, 7),
    Sketcher.Constraint("Equal", 7, 10),
    Sketcher.Constraint("Equal", 10, 14),
    Sketcher.Constraint("Equal", 14, 16),
    Sketcher.Constraint("Equal", 16, 19),
    Sketcher.Constraint("Equal", 19, 22),
    Sketcher.Constraint("Equal", 22, 26),
    Sketcher.Constraint("Equal", 26, 28),
    Sketcher.Constraint("Equal", 28, 31),
    Sketcher.Constraint("Equal", 31, 34),
    Sketcher.Constraint("Equal", 34, 37),
    Sketcher.Constraint("Equal", 37, 41),
    Sketcher.Constraint("Equal", 41, 43),
    Sketcher.Constraint("Equal", 43, 46),
    Sketcher.Constraint("Equal", 48, 50),
    Sketcher.Constraint("Equal", 50, 52),
    Sketcher.Constraint("Equal", 52, 54),
    Sketcher.Constraint("Equal", 54, 57),
    Sketcher.Constraint("Equal", 57, 59),
    Sketcher.Constraint("Equal", 59, 61),
    Sketcher.Constraint("Equal", 61, 63),
    Sketcher.Constraint("Equal", 63, 65),
    Sketcher.Constraint("Equal", 65, 67),
    Sketcher.Constraint("Equal", 67, 69),
    Sketcher.Constraint("Equal", 69, 71),
    Sketcher.Constraint("Equal", 71, 73),
    Sketcher.Constraint("Equal", 73, 75),
    Sketcher.Constraint("Equal", 75, 77),
    Sketcher.Constraint("Equal", 77, 79),
    Sketcher.Constraint("Symmetric", 0, 3, 26, 3, -1, 1),
    Sketcher.Constraint("Symmetric", 7, 3, 31, 3, -1, 1),
    Sketcher.Constraint("Symmetric", 14, 3, 37, 3, -1, 1),
    Sketcher.Constraint("Symmetric", 19, 3, 43, 3, -1, 1),
    Sketcher.Constraint("Symmetric", 63, 3, 65, 3, -1, 1),
    Sketcher.Constraint("Symmetric", 61, 3, 67, 3, -1, 1),
    Sketcher.Constraint("Symmetric", 59, 3, 69, 3, -1, 1),
    Sketcher.Constraint("Symmetric", 57, 3, 71, 3, -1, 1),
    Sketcher.Constraint("Symmetric", 50, 3, 73, 3, -1, 1),
    Sketcher.Constraint("Symmetric", 48, 3, 75, 3, -1, 1),
    Sketcher.Constraint("Symmetric", 52, 3, 77, 3, -1, 1),
    Sketcher.Constraint("Symmetric", 54, 3, 79, 3, -1, 1),
    Sketcher.Constraint("Symmetric", 14, 3, 19, 3, -2),
    Sketcher.Constraint("Symmetric", 7, 3, 26, 3, -2),
    Sketcher.Constraint("Symmetric", 54, 3, 57, 3, -2),
    Sketcher.Constraint("Symmetric", 52, 3, 59, 3, -2),
    Sketcher.Constraint("Symmetric", 50, 3, 61, 3, -2),
    Sketcher.Constraint("Symmetric", 48, 3, 63, 3, -2),
    Sketcher.Constraint("Horizontal", 52, 3, 54, 3),
    Sketcher.Constraint("Horizontal", 79, 3, 16, 1),
    Sketcher.Constraint("Horizontal", 44, 2, 52, 1),
    Sketcher.Constraint("Horizontal", 53, 1, 54, 1),
    Sketcher.Constraint("Horizontal", 55, 1, 56, 1),
    Sketcher.Constraint("Horizontal", 57, 1, 58, 1),
    Sketcher.Constraint("Horizontal", 23, 2, 68, 1),
    Sketcher.Constraint("Horizontal", 69, 1, 70, 1),
    Sketcher.Constraint("Horizontal", 71, 1, 76, 1),
    Sketcher.Constraint("Horizontal", 77, 1, 78, 1),
    Sketcher.Constraint("Vertical", 48, 3, 50, 3),
    Sketcher.Constraint("Vertical", 67, 3, 0, 1),
    Sketcher.Constraint("Vertical", 8, 2, 48, 1),
    Sketcher.Constraint("Vertical", 49, 1, 50, 1),
    Sketcher.Constraint("Vertical", 35, 2, 60, 1),
    Sketcher.Constraint("Vertical", 61, 1, 62, 1),
    Sketcher.Constraint("Vertical", 51, 1, 64, 1),
    Sketcher.Constraint("Vertical", 65, 1, 66, 1),
    Sketcher.Constraint("Vertical", 63, 1, 72, 1),
    Sketcher.Constraint("Vertical", 73, 1, 74, 1),
    Sketcher.Constraint("Equal", 47, 53),
    Sketcher.Constraint("DistanceX", 48, 3, -1, 1, Q("0.5 in")),
    Sketcher.Constraint("DistanceY", -1, 1, 50, 3, Q("0.4 in")),
    Sketcher.Constraint("DistanceX", 52, 3, -1, 1, Q("0.4 in")),
    Sketcher.Constraint("DistanceY", -1, 1, 52, 3, Q("0.5 in")),
    Sketcher.Constraint("Radius", 0, Q("0.0435 in")),
    Sketcher.Constraint("DistanceY", -1, 1, 48, 3, Q("0.228 in")),
    Sketcher.Constraint("DistanceX", 54, 3, -1, 1, Q("0.228 in")),
    Sketcher.Constraint("DistanceY", -1, 1, 1, 2, Q("0.128 in")),
    Sketcher.Constraint("DistanceX", 12, 2, -1, 1, Q("0.128 in")),
])
pocket2 = body.newObject("PartDesign::Pocket", "Pocket001")
pocket2.Profile = sketch3
pocket2.Type = "ThroughAll"
doc.recompute()

fillet = body.newObject("PartDesign::Fillet", "Fillet")
fillet.Base = (pocket2, edges_at(pocket2, [
    (2.959, 4.521, 0),
    (-2.959, 4.521, 0),
    (-2.959, -4.521, 0),
    (2.959, -4.521, 0),
    (4.521, -2.959, 0),
    (4.521, 2.959, 0),
    (-4.521, 2.959, 0),
    (-4.521, -2.959, 0),
]))
fillet.Radius = Q("0.1 in")
doc.recompute()

fillet2 = body.newObject("PartDesign::Fillet", "Fillet001")
fillet2.Base = (fillet, edges_at(fillet, [
    (-12.7, 12.7, 0),
    (12.7, 12.7, 0),
    (12.7, -12.7, 0),
    (-12.7, -12.7, 0),
]))
fillet2.Radius = Q("0.07 in")

doc.recompute()
